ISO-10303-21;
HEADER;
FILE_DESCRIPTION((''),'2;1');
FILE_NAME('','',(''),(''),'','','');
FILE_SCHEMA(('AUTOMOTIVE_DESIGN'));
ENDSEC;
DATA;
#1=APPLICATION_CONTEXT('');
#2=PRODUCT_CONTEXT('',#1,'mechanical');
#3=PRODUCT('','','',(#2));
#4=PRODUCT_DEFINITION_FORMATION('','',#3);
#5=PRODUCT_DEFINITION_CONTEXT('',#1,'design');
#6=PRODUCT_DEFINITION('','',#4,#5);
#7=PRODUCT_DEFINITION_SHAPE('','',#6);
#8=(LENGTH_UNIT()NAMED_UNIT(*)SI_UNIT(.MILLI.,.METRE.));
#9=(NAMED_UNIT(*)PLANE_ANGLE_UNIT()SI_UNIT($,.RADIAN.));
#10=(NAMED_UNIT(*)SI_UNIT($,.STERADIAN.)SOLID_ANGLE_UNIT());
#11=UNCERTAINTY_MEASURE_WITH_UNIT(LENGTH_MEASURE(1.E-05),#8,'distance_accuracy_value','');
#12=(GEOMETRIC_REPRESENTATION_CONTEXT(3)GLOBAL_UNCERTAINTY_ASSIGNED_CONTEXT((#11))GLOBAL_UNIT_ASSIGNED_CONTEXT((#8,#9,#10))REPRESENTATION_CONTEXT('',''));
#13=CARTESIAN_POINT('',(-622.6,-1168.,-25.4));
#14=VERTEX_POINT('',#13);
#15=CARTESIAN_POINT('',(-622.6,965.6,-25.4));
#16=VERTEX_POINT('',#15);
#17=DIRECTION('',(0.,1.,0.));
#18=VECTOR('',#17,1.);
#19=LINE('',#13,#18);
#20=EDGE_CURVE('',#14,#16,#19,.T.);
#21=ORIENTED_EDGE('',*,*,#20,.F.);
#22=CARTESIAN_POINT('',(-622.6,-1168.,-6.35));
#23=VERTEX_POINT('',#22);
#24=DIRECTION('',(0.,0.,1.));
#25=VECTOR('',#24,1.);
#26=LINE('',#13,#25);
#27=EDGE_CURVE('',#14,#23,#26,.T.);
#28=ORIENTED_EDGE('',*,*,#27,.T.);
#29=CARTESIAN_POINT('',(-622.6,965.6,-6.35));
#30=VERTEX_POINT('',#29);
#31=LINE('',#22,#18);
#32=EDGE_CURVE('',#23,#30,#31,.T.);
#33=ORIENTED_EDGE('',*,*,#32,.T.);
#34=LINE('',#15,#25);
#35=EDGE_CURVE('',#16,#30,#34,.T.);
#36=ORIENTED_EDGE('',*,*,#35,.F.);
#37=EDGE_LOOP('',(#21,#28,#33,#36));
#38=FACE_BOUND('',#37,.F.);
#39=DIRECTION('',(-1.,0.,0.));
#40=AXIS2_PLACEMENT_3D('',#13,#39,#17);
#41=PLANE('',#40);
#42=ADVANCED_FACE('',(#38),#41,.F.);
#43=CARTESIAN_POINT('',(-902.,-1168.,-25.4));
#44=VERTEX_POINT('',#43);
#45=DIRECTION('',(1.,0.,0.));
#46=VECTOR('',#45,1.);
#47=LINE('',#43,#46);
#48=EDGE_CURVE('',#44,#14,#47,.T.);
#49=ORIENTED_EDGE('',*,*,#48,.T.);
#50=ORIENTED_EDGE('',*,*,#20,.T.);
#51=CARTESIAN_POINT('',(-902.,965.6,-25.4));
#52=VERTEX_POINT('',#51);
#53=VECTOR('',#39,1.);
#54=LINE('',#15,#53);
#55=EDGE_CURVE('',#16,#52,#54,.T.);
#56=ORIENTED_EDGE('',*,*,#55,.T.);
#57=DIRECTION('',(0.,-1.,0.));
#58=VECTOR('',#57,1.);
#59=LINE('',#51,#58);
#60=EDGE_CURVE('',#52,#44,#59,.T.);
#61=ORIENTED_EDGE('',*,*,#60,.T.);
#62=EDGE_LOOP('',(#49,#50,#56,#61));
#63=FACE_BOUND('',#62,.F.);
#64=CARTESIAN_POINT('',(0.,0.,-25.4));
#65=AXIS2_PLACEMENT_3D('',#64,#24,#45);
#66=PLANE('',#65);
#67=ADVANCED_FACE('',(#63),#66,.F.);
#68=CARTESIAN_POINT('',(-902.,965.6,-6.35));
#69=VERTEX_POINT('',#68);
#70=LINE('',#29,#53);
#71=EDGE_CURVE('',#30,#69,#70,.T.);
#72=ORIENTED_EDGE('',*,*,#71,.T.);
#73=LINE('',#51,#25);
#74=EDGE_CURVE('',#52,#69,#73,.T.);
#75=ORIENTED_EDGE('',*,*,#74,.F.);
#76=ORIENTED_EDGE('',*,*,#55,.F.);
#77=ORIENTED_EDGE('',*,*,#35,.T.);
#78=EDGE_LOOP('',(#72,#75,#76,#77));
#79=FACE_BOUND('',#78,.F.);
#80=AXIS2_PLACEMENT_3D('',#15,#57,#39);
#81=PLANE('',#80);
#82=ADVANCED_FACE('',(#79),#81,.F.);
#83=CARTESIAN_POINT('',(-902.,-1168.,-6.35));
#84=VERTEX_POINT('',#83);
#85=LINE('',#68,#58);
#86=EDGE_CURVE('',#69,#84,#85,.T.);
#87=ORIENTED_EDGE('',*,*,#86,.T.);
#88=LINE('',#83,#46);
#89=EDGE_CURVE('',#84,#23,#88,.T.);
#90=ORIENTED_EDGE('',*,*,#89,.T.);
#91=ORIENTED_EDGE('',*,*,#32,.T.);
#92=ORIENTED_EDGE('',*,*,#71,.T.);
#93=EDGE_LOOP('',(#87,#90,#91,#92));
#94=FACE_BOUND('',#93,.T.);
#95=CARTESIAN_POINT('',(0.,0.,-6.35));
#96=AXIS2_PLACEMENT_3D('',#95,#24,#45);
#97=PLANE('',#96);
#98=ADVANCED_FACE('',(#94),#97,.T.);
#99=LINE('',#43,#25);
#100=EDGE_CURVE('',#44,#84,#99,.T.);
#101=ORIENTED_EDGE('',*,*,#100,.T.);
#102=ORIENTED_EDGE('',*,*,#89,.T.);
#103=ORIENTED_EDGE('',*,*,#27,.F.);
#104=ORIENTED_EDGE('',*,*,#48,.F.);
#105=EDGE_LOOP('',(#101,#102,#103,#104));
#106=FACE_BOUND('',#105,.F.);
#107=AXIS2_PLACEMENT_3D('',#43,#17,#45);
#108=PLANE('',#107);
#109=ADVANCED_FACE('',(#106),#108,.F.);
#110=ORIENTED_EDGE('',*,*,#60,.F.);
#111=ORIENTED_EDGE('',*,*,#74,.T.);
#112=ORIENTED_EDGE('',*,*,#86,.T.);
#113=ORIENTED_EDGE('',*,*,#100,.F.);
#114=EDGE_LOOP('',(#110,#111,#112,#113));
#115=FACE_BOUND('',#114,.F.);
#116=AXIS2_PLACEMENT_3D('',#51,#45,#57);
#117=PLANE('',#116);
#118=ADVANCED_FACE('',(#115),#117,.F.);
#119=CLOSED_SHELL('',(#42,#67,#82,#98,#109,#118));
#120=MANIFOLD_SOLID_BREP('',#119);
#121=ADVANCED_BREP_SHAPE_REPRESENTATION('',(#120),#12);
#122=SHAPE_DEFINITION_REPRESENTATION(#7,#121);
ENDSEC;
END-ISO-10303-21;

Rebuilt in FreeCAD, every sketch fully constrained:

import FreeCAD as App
import Part
import Sketcher
Q = App.Units.Quantity

doc = App.newDocument("Part")
params = doc.addObject("Spreadsheet::Sheet", "Params")
for row, (alias, value) in enumerate([
    ("sketch1_width", "11 in"),
    ("sketch1_height", "84 in"),
    ("pad1_length", "0.75 in"),
], start=1):
    params.set(f"A{row}", alias)
    params.set(f"B{row}", "=" + value)
    params.setAlias(f"B{row}", alias)

body = doc.addObject("PartDesign::Body", "Body")

# Sketch on XY plane
sketch1 = body.newObject("Sketcher::SketchObject", "Sketch")
sketch1.AttachmentSupport = (doc.getObject("XY_Plane"), [""])
sketch1.MapMode = "FlatFace"
sketch1.AttachmentOffset = App.Placement(App.Vector(0, 0, -1 * 25.4), App.Rotation())
sketch1.addGeometry(Part.LineSegment(App.Vector(-902, 966, 0), App.Vector(-902, -1168, 0)), False)
sketch1.addGeometry(Part.LineSegment(App.Vector(-902, -1168, 0), App.Vector(-623, -1168, 0)), False)
sketch1.addGeometry(Part.LineSegment(App.Vector(-623, -1168, 0), App.Vector(-623, 966, 0)), False)
sketch1.addGeometry(Part.LineSegment(App.Vector(-623, 966, 0), App.Vector(-902, 966, 0)), False)
sketch1.addConstraint(Sketcher.Constraint("Coincident", 0, 2, 1, 1))
sketch1.addConstraint(Sketcher.Constraint("Coincident", 1, 2, 2, 1))
sketch1.addConstraint(Sketcher.Constraint("Coincident", 2, 2, 3, 1))
sketch1.addConstraint(Sketcher.Constraint("Coincident", 3, 2, 0, 1))
sketch1.addConstraint(Sketcher.Constraint("Vertical", 0))
sketch1.addConstraint(Sketcher.Constraint("Horizontal", 1))
sketch1.addConstraint(Sketcher.Constraint("Vertical", 2))
sketch1.addConstraint(Sketcher.Constraint("Horizontal", 3))
sketch1.addConstraint(Sketcher.Constraint("DistanceX", 1, 1, 1, 2, Q("11 in")))
sketch1.addConstraint(Sketcher.Constraint("DistanceY", 0, 2, 0, 1, Q("84 in")))
sketch1.addConstraint(Sketcher.Constraint("DistanceX", 0, 2, -1, 1, Q("35.5118 in")))
sketch1.addConstraint(Sketcher.Constraint("DistanceY", 0, 2, -1, 1, Q("1168 mm")))
sketch1.setExpression("Constraints[8]", "Params.sketch1_width")
sketch1.setExpression("Constraints[9]", "Params.sketch1_height")
pad1 = body.newObject("PartDesign::Pad", "Pad")
pad1.Profile = sketch1
pad1.setExpression("Length", "Params.pad1_length")

doc.recompute()
